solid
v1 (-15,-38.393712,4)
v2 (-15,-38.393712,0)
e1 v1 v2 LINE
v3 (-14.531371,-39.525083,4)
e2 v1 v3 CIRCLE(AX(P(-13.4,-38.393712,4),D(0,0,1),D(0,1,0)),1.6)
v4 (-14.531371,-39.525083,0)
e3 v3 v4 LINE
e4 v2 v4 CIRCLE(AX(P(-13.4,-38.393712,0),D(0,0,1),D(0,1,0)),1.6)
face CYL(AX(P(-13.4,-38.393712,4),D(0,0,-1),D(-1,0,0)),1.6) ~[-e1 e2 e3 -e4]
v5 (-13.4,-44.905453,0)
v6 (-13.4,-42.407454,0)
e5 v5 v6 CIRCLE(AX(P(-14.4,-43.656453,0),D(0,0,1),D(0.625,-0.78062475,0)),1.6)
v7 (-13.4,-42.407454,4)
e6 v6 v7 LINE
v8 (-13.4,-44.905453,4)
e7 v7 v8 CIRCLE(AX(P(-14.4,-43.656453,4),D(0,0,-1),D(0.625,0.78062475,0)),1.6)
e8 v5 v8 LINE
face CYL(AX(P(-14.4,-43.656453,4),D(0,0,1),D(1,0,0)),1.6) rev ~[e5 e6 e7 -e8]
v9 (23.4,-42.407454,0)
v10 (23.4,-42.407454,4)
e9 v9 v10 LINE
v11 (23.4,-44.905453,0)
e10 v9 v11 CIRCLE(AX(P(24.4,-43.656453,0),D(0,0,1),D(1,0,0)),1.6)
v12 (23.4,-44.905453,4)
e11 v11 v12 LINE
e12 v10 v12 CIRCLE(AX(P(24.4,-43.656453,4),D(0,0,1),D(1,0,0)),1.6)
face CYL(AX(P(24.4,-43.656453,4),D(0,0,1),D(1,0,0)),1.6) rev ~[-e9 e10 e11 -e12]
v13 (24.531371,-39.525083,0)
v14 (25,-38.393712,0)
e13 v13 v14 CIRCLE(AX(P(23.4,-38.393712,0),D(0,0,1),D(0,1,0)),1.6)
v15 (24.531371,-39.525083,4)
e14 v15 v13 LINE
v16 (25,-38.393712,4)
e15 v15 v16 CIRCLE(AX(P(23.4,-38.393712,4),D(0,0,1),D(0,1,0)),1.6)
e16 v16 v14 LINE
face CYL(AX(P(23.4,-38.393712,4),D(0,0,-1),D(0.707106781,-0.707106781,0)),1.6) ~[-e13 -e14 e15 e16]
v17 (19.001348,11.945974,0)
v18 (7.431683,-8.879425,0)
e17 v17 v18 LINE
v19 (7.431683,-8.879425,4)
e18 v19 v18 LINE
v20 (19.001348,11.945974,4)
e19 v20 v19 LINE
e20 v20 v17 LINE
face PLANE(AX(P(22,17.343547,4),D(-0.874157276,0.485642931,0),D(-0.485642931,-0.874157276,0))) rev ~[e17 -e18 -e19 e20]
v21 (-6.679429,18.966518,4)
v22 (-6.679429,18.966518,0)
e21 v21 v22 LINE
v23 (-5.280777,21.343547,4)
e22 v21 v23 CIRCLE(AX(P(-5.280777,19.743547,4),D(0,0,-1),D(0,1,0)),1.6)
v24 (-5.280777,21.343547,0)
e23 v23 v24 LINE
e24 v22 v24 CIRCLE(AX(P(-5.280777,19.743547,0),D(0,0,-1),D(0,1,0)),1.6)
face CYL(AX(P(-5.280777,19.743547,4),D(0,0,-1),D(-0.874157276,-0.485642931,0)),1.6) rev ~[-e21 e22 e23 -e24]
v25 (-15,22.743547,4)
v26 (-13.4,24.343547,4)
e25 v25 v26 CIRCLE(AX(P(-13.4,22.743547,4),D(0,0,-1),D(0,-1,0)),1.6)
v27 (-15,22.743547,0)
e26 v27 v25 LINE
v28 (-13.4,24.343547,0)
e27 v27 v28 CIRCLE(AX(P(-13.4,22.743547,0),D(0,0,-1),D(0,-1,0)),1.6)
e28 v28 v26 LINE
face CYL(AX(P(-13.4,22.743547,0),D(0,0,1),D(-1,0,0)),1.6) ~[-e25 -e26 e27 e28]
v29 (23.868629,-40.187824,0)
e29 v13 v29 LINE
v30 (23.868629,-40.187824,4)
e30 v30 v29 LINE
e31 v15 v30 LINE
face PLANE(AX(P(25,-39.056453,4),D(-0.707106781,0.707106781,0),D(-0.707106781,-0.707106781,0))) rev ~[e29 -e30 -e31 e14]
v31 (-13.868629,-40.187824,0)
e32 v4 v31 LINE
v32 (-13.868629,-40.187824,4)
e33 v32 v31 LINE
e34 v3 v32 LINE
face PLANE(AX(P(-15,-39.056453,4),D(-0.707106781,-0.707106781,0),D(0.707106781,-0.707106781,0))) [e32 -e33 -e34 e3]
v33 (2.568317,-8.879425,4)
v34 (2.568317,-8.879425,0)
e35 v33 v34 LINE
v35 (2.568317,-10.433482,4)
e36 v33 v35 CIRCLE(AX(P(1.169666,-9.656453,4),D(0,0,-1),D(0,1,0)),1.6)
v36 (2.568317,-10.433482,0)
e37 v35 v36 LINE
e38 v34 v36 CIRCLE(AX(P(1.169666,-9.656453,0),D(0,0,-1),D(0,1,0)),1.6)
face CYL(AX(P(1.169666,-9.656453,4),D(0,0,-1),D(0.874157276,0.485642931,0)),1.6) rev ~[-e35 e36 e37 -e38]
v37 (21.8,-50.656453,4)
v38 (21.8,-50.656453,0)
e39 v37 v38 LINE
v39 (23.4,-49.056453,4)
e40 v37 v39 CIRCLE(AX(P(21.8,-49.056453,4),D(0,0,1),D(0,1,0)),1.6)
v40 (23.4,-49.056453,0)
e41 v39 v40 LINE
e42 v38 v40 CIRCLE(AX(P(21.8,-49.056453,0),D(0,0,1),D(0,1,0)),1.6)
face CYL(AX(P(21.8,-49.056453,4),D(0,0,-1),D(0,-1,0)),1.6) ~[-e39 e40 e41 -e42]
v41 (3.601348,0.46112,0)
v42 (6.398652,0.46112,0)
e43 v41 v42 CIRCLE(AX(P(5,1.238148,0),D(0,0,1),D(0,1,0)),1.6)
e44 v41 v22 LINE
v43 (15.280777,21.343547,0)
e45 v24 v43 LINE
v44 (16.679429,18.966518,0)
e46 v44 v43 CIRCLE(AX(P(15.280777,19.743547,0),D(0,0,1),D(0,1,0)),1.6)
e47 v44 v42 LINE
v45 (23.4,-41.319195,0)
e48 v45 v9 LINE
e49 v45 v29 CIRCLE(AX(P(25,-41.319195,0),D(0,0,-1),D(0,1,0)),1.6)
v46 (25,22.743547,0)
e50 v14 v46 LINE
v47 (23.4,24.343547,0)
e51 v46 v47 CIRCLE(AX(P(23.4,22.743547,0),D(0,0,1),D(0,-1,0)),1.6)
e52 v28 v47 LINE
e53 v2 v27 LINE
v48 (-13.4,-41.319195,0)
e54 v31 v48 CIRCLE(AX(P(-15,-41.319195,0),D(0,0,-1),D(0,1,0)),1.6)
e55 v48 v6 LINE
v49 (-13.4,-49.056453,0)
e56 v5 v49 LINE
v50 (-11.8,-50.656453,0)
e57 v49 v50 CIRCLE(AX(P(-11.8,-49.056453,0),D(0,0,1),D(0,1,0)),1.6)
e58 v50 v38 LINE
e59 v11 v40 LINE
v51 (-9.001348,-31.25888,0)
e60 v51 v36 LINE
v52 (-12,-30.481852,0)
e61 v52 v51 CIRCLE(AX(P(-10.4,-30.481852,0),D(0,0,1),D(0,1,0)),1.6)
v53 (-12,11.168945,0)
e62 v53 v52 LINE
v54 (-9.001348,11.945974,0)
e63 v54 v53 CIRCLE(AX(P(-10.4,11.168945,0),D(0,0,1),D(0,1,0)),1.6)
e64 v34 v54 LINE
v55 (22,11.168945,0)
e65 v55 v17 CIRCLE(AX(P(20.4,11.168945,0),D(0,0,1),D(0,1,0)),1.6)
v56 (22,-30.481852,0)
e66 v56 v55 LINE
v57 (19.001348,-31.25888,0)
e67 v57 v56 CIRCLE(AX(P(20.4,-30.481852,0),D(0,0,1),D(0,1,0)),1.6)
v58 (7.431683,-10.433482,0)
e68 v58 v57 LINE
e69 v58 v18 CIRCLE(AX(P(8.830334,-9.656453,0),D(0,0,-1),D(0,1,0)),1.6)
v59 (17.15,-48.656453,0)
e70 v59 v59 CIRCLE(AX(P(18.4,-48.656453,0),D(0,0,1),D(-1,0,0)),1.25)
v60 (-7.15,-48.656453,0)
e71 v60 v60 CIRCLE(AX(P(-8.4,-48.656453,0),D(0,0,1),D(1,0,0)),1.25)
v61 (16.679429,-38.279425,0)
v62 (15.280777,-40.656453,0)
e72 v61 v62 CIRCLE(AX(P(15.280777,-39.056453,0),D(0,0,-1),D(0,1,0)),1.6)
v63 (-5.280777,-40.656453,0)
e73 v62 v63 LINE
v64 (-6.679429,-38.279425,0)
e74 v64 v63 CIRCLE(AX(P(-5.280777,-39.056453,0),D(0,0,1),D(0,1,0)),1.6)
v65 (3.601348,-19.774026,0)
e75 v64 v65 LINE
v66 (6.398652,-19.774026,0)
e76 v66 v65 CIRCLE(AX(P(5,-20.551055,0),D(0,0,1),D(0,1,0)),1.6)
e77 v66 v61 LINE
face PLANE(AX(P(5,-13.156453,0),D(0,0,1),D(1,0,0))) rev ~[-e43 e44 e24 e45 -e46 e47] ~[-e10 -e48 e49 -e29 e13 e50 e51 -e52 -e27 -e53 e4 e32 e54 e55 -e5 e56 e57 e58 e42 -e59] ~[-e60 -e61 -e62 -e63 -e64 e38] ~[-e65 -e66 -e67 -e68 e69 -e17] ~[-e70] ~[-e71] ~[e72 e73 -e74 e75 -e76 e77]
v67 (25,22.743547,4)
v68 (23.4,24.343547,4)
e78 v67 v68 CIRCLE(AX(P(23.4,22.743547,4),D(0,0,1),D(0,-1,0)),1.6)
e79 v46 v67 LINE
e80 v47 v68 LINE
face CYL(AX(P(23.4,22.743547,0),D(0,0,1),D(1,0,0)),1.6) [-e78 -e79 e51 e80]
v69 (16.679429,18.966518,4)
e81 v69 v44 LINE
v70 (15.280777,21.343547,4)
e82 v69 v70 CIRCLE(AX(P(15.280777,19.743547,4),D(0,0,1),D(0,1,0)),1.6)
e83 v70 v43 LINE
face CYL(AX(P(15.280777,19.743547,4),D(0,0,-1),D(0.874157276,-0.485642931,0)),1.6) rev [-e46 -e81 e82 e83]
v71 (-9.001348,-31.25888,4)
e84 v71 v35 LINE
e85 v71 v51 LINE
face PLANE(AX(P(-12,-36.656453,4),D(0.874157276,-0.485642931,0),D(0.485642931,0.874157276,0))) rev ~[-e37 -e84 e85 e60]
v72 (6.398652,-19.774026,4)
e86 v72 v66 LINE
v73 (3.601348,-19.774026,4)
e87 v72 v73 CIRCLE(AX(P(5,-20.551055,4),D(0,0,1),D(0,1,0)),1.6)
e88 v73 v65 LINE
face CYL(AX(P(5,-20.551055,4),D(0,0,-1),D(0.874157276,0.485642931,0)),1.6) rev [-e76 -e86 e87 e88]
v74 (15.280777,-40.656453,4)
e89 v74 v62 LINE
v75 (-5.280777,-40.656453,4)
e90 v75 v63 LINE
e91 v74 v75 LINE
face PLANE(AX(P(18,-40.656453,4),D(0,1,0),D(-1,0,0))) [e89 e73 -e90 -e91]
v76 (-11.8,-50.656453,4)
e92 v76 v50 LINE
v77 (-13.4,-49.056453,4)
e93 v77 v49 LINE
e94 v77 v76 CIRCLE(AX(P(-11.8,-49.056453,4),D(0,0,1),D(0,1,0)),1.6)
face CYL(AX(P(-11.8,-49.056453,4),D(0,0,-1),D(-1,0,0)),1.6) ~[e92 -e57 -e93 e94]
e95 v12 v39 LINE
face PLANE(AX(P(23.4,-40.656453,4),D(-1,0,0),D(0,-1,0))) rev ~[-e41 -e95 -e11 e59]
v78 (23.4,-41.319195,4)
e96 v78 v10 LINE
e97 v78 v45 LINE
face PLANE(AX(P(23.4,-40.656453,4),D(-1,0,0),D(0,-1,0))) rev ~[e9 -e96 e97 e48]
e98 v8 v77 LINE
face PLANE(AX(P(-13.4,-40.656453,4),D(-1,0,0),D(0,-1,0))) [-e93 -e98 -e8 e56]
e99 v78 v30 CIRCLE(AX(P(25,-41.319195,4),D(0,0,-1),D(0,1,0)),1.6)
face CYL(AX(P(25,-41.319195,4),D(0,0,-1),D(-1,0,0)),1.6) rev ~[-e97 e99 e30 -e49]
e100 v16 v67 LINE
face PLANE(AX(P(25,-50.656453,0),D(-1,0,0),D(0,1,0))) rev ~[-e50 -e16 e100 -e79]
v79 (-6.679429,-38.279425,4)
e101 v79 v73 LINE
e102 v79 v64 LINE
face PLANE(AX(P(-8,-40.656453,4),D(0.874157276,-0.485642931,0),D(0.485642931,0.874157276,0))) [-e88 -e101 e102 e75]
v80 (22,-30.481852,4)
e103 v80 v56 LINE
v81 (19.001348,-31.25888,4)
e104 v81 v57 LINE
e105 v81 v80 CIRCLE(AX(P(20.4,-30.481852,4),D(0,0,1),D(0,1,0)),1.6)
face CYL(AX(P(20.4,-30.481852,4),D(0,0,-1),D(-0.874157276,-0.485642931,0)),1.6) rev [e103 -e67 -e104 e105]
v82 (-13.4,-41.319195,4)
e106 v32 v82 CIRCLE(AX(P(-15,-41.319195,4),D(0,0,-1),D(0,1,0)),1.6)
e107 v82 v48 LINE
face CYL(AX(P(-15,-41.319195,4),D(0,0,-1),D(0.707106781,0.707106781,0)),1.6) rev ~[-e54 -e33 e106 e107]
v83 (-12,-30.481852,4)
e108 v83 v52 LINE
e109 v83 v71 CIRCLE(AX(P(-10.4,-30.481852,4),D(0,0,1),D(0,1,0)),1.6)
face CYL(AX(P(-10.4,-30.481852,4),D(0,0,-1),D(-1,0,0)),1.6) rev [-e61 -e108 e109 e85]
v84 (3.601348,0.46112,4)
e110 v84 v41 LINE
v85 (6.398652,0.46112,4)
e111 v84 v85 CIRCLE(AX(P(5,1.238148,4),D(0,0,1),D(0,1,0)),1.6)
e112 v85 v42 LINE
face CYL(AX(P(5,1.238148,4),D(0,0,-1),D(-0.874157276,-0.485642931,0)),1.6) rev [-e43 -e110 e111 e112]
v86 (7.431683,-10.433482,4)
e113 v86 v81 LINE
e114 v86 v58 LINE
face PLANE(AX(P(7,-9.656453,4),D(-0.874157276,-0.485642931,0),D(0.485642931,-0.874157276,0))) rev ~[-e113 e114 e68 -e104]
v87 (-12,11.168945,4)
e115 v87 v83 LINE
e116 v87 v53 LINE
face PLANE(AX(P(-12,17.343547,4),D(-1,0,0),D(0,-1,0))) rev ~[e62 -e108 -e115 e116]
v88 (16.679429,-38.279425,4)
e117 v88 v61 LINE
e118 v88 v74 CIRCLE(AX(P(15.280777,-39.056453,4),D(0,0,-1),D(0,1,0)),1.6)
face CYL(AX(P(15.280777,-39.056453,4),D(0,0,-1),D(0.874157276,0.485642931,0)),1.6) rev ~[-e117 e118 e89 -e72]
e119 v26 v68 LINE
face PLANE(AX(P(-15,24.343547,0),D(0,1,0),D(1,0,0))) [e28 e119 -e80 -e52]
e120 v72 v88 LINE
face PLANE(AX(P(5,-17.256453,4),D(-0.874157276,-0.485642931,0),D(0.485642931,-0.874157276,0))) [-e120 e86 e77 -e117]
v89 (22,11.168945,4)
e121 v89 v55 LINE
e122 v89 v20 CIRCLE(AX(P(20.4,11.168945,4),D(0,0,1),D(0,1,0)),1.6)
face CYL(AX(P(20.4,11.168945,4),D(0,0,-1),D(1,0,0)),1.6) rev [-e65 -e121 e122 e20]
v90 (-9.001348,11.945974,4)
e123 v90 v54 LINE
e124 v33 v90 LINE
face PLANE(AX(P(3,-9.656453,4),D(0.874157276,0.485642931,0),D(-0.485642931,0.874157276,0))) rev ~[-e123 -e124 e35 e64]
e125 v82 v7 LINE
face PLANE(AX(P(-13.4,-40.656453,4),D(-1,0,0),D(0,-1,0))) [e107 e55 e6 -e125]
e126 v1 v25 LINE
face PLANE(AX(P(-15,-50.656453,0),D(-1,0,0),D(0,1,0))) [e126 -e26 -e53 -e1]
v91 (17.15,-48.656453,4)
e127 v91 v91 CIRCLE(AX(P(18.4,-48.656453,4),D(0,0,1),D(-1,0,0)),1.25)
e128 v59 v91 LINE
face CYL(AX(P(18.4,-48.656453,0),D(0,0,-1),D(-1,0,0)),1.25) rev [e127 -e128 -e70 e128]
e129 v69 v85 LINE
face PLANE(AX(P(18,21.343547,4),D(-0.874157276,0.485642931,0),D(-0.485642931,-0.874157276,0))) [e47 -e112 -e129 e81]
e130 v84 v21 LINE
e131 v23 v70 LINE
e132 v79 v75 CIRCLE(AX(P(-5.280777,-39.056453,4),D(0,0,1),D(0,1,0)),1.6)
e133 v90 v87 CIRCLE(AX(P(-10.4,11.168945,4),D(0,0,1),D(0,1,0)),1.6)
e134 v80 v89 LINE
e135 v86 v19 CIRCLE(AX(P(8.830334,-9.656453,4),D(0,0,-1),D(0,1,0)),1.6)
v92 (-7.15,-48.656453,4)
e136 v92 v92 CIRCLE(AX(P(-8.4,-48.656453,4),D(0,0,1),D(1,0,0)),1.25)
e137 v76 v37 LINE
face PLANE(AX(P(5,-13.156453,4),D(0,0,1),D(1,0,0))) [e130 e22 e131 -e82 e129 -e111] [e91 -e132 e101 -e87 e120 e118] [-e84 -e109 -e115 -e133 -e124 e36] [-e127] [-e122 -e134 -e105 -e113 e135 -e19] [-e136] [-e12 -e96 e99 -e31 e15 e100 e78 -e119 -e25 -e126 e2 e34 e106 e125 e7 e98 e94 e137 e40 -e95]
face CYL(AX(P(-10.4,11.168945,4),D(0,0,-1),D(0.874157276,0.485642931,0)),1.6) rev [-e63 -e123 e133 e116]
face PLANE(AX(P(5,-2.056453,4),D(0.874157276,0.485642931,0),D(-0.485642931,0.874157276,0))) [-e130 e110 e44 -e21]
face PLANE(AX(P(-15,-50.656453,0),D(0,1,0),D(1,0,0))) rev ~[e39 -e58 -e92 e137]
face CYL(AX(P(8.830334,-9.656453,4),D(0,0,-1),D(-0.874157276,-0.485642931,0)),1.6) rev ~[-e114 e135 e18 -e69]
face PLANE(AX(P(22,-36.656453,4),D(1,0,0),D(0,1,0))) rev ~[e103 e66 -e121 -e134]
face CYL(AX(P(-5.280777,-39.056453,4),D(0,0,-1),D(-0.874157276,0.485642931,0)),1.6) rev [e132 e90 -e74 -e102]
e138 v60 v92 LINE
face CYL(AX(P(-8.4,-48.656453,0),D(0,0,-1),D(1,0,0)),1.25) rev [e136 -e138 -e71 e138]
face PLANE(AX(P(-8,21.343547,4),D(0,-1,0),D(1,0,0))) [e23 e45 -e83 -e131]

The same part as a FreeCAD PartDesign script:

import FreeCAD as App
import Part
import Sketcher
from FreeCAD import Vector
Q = App.Units.Quantity


def edges_at(feature, points):
    """Names of the edges that pass closest to the given points."""
    edges = feature.Shape.Edges
    near = lambda p: min(range(len(edges)), key=lambda i: edges[i].distToShape(Part.Vertex(*p))[0])
    return sorted({f"Edge{near(p) + 1}" for p in points})


def add_polygon(sketch, points):
    """Adds a closed chain of lines whose ends are joined by coincident constraints."""
    first, n = sketch.GeometryCount, len(points)
    for a, b in zip(points, points[1:] + points[:1]):
        sketch.addGeometry(Part.LineSegment(App.Vector(*a, 0), App.Vector(*b, 0)), False)
    for i in range(n):
        sketch.addConstraint(Sketcher.Constraint("Coincident", first + i, 2, first + (i + 1) % n, 1))

doc = App.newDocument("Part")
body = doc.addObject("PartDesign::Body", "Body")

sketch1 = body.newObject("Sketcher::SketchObject", "Sketch")
sketch1.AttachmentSupport = (doc.getObject("XY_Plane"), [""])
sketch1.MapMode = "FlatFace"
add_polygon(sketch1, [(-15, 24.3), (-15, -50.7), (25, -50.7), (25, 24.3)])
sketch1.addGeometry(Part.Circle(Vector(-8.4, -48.7, 0), Vector(0, 0, 1), 1.2), False)
sketch1.addGeometry(Part.Circle(Vector(18.4, -48.7, 0), Vector(0, 0, 1), 1.2), False)
sketch1.addConstraint([
    Sketcher.Constraint("Vertical", 0),
    Sketcher.Constraint("Horizontal", 1),
    Sketcher.Constraint("Vertical", 2),
    Sketcher.Constraint("Horizontal", 3),
    Sketcher.Constraint("Equal", 4, 5),
    Sketcher.Constraint("Horizontal", 4, 3, 5, 3),
    Sketcher.Constraint("Diameter", 4, Q("2.5 mm")),
    Sketcher.Constraint("DistanceX", 1, 1, 1, 2, Q("40 mm")),
    Sketcher.Constraint("DistanceY", 0, 2, 0, 1, Q("75 mm")),
    Sketcher.Constraint("DistanceX", 0, 2, -1, 1, Q("15 mm")),
    Sketcher.Constraint("DistanceY", 0, 2, 4, 3, Q("2 mm")),
    Sketcher.Constraint("DistanceX", 4, 3, -1, 1, Q("8.4 mm")),
    Sketcher.Constraint("DistanceX", -1, 1, 5, 3, Q("18.4 mm")),
    Sketcher.Constraint("DistanceY", 4, 3, -1, 1, Q("48.656453 mm")),
])
pad1 = body.newObject("PartDesign::Pad", "Pad")
pad1.Profile = sketch1
pad1.Length = 4

sketch2 = body.newObject("Sketcher::SketchObject", "Sketch001")
sketch2.AttachmentSupport = (doc.getObject("XY_Plane"), [""])
sketch2.MapMode = "FlatFace"
sketch2.AttachmentOffset = App.Placement(Vector(0, 0, 4), App.Rotation())
add_polygon(sketch2, [(-12, -37), (3, -10), (-12, 17)])
add_polygon(sketch2, [(5, -17), (-8, -41), (18, -41)])
add_polygon(sketch2, [(5, -2), (18, 21), (-8, 21)])
add_polygon(sketch2, [(22, 17), (7, -10), (22, -37)])
sketch2.addConstraint([
    Sketcher.Constraint("Vertical", 2),
    Sketcher.Constraint("Horizontal", 4),
    Sketcher.Constraint("Horizontal", 7),
    Sketcher.Constraint("Vertical", 11),
    Sketcher.Constraint("Parallel", 0, 3),
    Sketcher.Constraint("Parallel", 1, 5),
    Sketcher.Constraint("Parallel", 3, 6),
    Sketcher.Constraint("Parallel", 5, 8),
    Sketcher.Constraint("Parallel", 6, 9),
    Sketcher.Constraint("Parallel", 8, 10),
    Sketcher.Constraint("Horizontal", 0, 2, 9, 2),
    Sketcher.Constraint("Horizontal", 2, 2, 10, 2),
    Sketcher.Constraint("Horizontal", 1, 2, 11, 2),
    Sketcher.Constraint("Vertical", 4, 2, 6, 2),
    Sketcher.Constraint("Vertical", 3, 2, 7, 2),
    Sketcher.Constraint("DistanceX", 4, 1, 4, 2, Q("26 mm")),
    Sketcher.Constraint("DistanceY", 2, 2, 2, 1, Q("54 mm")),
    Sketcher.Constraint("DistanceX", -1, 1, 0, 2, Q("3 mm")),
    Sketcher.Constraint("DistanceX", 1, 2, -1, 1, Q("12 mm")),
    Sketcher.Constraint("DistanceX", 3, 2, -1, 1, Q("8 mm")),
    Sketcher.Constraint("DistanceX", -1, 1, 9, 2, Q("7 mm")),
    Sketcher.Constraint("DistanceY", 3, 2, 2, 2, Q("4 mm")),
    Sketcher.Constraint("DistanceY", 1, 2, 6, 2, Q("4 mm")),
    Sketcher.Constraint("DistanceY", 0, 2, -1, 1, Q("9.656453 mm")),
])
pocket1 = body.newObject("PartDesign::Pocket", "Pocket")
pocket1.Profile = sketch2
pocket1.Length = 4

sketch3 = body.newObject("Sketcher::SketchObject", "Sketch002")
sketch3.AttachmentSupport = (doc.getObject("XY_Plane"), [""])
sketch3.MapMode = "FlatFace"
sketch3.AttachmentOffset = App.Placement(Vector(0, 0, 4), App.Rotation())
add_polygon(sketch3, [(-15, -50.7), (-13.4, -50.7), (-13.4, -40.7), (-15, -39.1)])
add_polygon(sketch3, [(25, -50.7), (25, -39.1), (23.4, -40.7), (23.4, -50.7)])
sketch3.addConstraint([
    Sketcher.Constraint("Horizontal", 0),
    Sketcher.Constraint("Vertical", 1),
    Sketcher.Constraint("Vertical", 3),
    Sketcher.Constraint("Vertical", 4),
    Sketcher.Constraint("Vertical", 6),
    Sketcher.Constraint("Horizontal", 7),
    Sketcher.Constraint("Perpendicular", 2, 5),
    Sketcher.Constraint("Horizontal", 2, 2, 4, 2),
    Sketcher.Constraint("Horizontal", 1, 2, 5, 2),
    Sketcher.Constraint("Horizontal", 3, 2, 6, 2),
    Sketcher.Constraint("Equal", 0, 7),
    Sketcher.Constraint("DistanceY", 1, 1, 1, 2, Q("10 mm")),
    Sketcher.Constraint("DistanceX", 0, 1, 0, 2, Q("1.6 mm")),
    Sketcher.Constraint("DistanceX", 2, 2, -1, 1, Q("15 mm")),
    Sketcher.Constraint("DistanceX", -1, 1, 4, 2, Q("25 mm")),
    Sketcher.Constraint("DistanceY", 0, 2, -1, 1, Q("50.656453 mm")),
])
pocket2 = body.newObject("PartDesign::Pocket", "Pocket001")
pocket2.Profile = sketch3
pocket2.Length = 4

sketch4 = body.newObject("Sketcher::SketchObject", "Sketch003")
sketch4.AttachmentSupport = (doc.getObject("XY_Plane"), [""])
sketch4.MapMode = "FlatFace"
sketch4.AttachmentOffset = App.Placement(Vector(0, 0, 4), App.Rotation())
sketch4.addGeometry([
    Part.Circle(Vector(-14.4, -43.7, 0), Vector(0, 0, 1), 1.6),
    Part.Circle(Vector(24.4, -43.7, 0), Vector(0, 0, 1), 1.6),
], False)
sketch4.addConstraint([
    Sketcher.Constraint("Equal", 0, 1),
    Sketcher.Constraint("Horizontal", 0, 3, 1, 3),
    Sketcher.Constraint("Diameter", 0, Q("3.2 mm")),
    Sketcher.Constraint("DistanceX", 0, 3, -1, 1, Q("14.4 mm")),
    Sketcher.Constraint("DistanceX", -1, 1, 1, 3, Q("24.4 mm")),
    Sketcher.Constraint("DistanceY", 0, 3, -1, 1, Q("43.656453 mm")),
])
pocket3 = body.newObject("PartDesign::Pocket", "Pocket002")
pocket3.Profile = sketch4
pocket3.Length = 4
doc.recompute()

fillet = body.newObject("PartDesign::Fillet", "Fillet")
fillet.Base = (pocket3, edges_at(pocket3, [
    (18, -40.656, 2),
    (-8, -40.656, 2),
    (5, -17.256, 2),
    (-8, 21.344, 2),
    (18, 21.344, 2),
    (5, -2.056, 2),
    (22, 17.344, 2),
    (22, -36.656, 2),
    (7, -9.656, 2),
    (-12, -36.656, 2),
    (-12, 17.344, 2),
    (3, -9.656, 2),
    (-15, 24.344, 2),
    (25, 24.344, 2),
    (-13.4, -40.656, 2),
    (-13.4, -50.656, 2),
    (-15, -39.056, 2),
    (23.4, -50.656, 2),
    (23.4, -40.656, 2),
    (25, -39.056, 2),
]))
fillet.Radius = 1.6

doc.recompute()
